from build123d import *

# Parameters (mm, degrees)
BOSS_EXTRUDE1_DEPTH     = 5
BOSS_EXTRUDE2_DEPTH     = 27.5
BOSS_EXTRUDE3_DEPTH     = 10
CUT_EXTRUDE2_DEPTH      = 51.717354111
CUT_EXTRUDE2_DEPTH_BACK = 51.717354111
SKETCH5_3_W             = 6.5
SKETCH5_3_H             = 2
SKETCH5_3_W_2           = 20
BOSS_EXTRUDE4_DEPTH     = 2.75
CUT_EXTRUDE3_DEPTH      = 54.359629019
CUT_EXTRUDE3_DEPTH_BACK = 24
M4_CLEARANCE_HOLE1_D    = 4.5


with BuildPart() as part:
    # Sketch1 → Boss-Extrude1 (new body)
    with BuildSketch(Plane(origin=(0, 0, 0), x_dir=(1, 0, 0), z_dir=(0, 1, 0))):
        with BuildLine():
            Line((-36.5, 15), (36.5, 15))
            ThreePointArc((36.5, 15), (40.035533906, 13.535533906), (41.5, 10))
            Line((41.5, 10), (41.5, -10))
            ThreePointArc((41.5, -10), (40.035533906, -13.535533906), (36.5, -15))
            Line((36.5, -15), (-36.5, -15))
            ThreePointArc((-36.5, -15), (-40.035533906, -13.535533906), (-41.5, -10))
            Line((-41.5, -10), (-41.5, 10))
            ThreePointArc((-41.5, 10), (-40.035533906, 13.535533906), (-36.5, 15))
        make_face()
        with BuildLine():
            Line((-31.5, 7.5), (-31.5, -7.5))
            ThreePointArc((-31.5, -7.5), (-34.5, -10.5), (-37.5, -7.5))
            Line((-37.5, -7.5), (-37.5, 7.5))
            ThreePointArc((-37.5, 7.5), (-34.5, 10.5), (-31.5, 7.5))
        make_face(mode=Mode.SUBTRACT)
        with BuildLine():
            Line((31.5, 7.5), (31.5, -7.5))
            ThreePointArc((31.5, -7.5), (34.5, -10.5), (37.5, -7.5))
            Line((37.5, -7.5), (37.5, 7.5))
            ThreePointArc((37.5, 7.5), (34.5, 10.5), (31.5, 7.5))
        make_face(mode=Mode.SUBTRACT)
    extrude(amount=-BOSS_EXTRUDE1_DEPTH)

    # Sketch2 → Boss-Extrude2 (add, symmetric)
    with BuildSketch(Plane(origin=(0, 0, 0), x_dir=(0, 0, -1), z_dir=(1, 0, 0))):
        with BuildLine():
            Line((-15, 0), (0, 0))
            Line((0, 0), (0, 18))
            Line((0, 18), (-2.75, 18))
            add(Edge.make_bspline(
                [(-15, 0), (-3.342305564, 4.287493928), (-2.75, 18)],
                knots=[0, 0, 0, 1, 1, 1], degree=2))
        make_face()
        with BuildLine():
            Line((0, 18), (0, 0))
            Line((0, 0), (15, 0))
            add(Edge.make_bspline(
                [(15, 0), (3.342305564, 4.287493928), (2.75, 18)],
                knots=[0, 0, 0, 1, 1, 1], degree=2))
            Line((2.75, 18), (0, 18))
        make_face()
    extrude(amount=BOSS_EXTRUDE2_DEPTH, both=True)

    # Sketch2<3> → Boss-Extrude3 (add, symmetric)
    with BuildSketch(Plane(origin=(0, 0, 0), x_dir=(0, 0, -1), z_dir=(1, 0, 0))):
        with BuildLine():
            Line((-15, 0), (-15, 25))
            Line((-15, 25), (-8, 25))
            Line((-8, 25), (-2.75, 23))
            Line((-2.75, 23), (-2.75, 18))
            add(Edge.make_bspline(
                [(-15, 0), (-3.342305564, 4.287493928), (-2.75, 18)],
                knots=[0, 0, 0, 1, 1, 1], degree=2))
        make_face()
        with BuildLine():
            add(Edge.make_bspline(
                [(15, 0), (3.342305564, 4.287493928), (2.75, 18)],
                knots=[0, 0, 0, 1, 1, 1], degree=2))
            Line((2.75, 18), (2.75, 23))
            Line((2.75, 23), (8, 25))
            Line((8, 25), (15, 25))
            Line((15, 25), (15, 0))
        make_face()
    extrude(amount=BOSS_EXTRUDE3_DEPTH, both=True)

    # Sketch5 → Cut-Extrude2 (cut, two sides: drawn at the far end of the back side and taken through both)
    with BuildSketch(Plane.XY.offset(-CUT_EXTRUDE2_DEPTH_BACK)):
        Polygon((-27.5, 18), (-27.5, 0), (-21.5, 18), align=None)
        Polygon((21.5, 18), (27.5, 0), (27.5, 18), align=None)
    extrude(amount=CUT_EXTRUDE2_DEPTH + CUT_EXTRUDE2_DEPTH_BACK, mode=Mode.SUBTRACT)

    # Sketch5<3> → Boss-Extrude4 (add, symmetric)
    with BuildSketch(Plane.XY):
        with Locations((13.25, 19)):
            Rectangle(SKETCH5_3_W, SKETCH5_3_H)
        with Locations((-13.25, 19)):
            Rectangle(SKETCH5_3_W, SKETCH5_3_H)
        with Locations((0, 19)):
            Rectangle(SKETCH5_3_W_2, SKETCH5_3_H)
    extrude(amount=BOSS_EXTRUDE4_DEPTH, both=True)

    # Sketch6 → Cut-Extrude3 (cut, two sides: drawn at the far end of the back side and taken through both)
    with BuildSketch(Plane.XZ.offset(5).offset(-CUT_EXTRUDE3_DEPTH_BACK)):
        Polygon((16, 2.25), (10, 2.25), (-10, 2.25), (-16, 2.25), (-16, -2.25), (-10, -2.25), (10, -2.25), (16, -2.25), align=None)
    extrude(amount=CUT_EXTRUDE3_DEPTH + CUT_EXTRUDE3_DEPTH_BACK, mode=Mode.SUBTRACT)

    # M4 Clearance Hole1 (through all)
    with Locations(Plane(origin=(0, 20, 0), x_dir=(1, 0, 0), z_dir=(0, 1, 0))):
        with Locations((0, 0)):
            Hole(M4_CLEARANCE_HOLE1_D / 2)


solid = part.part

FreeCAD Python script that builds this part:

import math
import FreeCAD as App
import Part
import Sketcher


def add_polygon(sketch, points):
    """Adds a closed chain of lines whose ends are joined by coincident constraints."""
    first, n = sketch.GeometryCount, len(points)
    for a, b in zip(points, points[1:] + points[:1]):
        sketch.addGeometry(Part.LineSegment(App.Vector(*a, 0), App.Vector(*b, 0)), False)
    for i in range(n):
        sketch.addConstraint(Sketcher.Constraint("Coincident", first + i, 2, first + (i + 1) % n, 1))

doc = App.newDocument("Part")
params = doc.addObject("Spreadsheet::Sheet", "Params")
for row, (alias, value) in enumerate([
    ("sketch1_radius", "5 mm"),
    ("sketch1_radius2", "3 mm"),
    ("sketch1_width", "73 mm"),
    ("sketch1_height", "20 mm"),
    ("sketch1_height2", "15 mm"),
    ("pad1_length", "5 mm"),
    ("pad2_length", "55 mm"),
    ("sketch3_width", "25 mm"),
    ("sketch3_width2", "5 mm"),
    ("sketch3_height", "7 mm"),
    ("pad3_length", "20 mm"),
    ("sketch4_width", "6 mm"),
    ("sketch4_height", "18 mm"),
    ("sketch5_width", "33 mm"),
    ("sketch5_height", "2 mm"),
    ("pad4_length", "5.5 mm"),
    ("sketch6_width", "32 mm"),
    ("sketch6_height", "4.5 mm"),
    ("pocket2_length", "54.359629 mm"),
    ("pocket2_length2", "24 mm"),
    ("sketch7_diameter", "4.5 mm"),
    ("hole_diameter", "4.5 mm"),
], start=1):
    params.set(f"A{row}", alias)
    params.set(f"B{row}", "=" + value)
    params.setAlias(f"B{row}", alias)

body = doc.addObject("PartDesign::Body", "Body")

sketch1 = doc.addObject("Sketcher::SketchObject", "Sketch")
body.addObject(sketch1)
sketch1.AttachmentSupport = (doc.XZ_Plane, [""])
sketch1.MapMode = "FlatFace"
sketch1.addGeometry([
    Part.LineSegment(App.Vector(36.5, -15, 0), App.Vector(-36.5, -15, 0)),
    Part.ArcOfCircle(Part.Circle(App.Vector(-36.5, -10, 0), App.Vector(0, 0, 1), 5), math.radians(180), math.radians(270)),
    Part.LineSegment(App.Vector(-41.5, -10, 0), App.Vector(-41.5, 10, 0)),
    Part.ArcOfCircle(Part.Circle(App.Vector(-36.5, 10, 0), App.Vector(0, 0, 1), 5), math.radians(90), math.radians(180)),
    Part.LineSegment(App.Vector(-36.5, 15, 0), App.Vector(36.5, 15, 0)),
    Part.ArcOfCircle(Part.Circle(App.Vector(36.5, 10, 0), App.Vector(0, 0, 1), 5), math.radians(0), math.radians(90)),
    Part.LineSegment(App.Vector(41.5, 10, 0), App.Vector(41.5, -10, 0)),
    Part.ArcOfCircle(Part.Circle(App.Vector(36.5, -10, 0), App.Vector(0, 0, 1), 5), math.radians(-90), math.radians(0)),
    Part.ArcOfCircle(Part.Circle(App.Vector(34.5, -7.5, 0), App.Vector(0, 0, 1), 3), math.radians(180), math.radians(360)),
    Part.LineSegment(App.Vector(37.5, -7.5, 0), App.Vector(37.5, 7.5, 0)),
    Part.ArcOfCircle(Part.Circle(App.Vector(34.5, 7.5, 0), App.Vector(0, 0, 1), 3), math.radians(0), math.radians(180)),
    Part.LineSegment(App.Vector(31.5, 7.5, 0), App.Vector(31.5, -7.5, 0)),
    Part.LineSegment(App.Vector(-31.5, -7.5, 0), App.Vector(-31.5, 7.5, 0)),
    Part.ArcOfCircle(Part.Circle(App.Vector(-34.5, 7.5, 0), App.Vector(0, 0, 1), 3), math.radians(0), math.radians(180)),
    Part.LineSegment(App.Vector(-37.5, 7.5, 0), App.Vector(-37.5, -7.5, 0)),
    Part.ArcOfCircle(Part.Circle(App.Vector(-34.5, -7.5, 0), App.Vector(0, 0, 1), 3), math.radians(180), math.radians(360)),
], False)
sketch1.addConstraint([
    Sketcher.Constraint("Tangent", 0, 2, 1, 2),
    Sketcher.Constraint("Tangent", 1, 1, 2, 1),
    Sketcher.Constraint("Tangent", 2, 2, 3, 2),
    Sketcher.Constraint("Tangent", 3, 1, 4, 1),
    Sketcher.Constraint("Tangent", 4, 2, 5, 2),
    Sketcher.Constraint("Tangent", 5, 1, 6, 1),
    Sketcher.Constraint("Tangent", 6, 2, 7, 2),
    Sketcher.Constraint("Tangent", 7, 1, 0, 1),
    Sketcher.Constraint("Tangent", 8, 2, 9, 1),
    Sketcher.Constraint("Tangent", 9, 2, 10, 1),
    Sketcher.Constraint("Tangent", 10, 2, 11, 1),
    Sketcher.Constraint("Tangent", 11, 2, 8, 1),
    Sketcher.Constraint("Tangent", 12, 2, 13, 1),
    Sketcher.Constraint("Tangent", 13, 2, 14, 1),
    Sketcher.Constraint("Tangent", 14, 2, 15, 1),
    Sketcher.Constraint("Tangent", 15, 2, 12, 1),
    Sketcher.Constraint("Horizontal", 0),
    Sketcher.Constraint("Vertical", 2),
    Sketcher.Constraint("Horizontal", 4),
    Sketcher.Constraint("Vertical", 6),
    Sketcher.Constraint("Vertical", 9),
    Sketcher.Constraint("Vertical", 11),
    Sketcher.Constraint("Vertical", 12),
    Sketcher.Constraint("Vertical", 14),
    Sketcher.Constraint("Equal", 1, 3),
    Sketcher.Constraint("Equal", 3, 5),
    Sketcher.Constraint("Equal", 5, 7),
    Sketcher.Constraint("Equal", 10, 13),
    Sketcher.Constraint("Symmetric", 1, 3, 5, 3, -1, 1),
    Sketcher.Constraint("Symmetric", 8, 3, 13, 3, -1, 1),
    Sketcher.Constraint("Horizontal", 10, 3, 13, 3),
    Sketcher.Constraint("Horizontal", 8, 3, 15, 3),
    Sketcher.Constraint("Radius", 1, 5.0),
    Sketcher.Constraint("Radius", 8, 3.0),
    Sketcher.Constraint("DistanceX", 0, 2, 0, 1, 73.0),
    Sketcher.Constraint("DistanceY", 2, 1, 2, 2, 20.0),
    Sketcher.Constraint("DistanceY", 9, 1, 9, 2, 15.0),
    Sketcher.Constraint("DistanceX", 8, 3, 7, 3, 2.0),
])
sketch1.setExpression("Constraints[32]", "Params.sketch1_radius")
sketch1.setExpression("Constraints[33]", "Params.sketch1_radius2")
sketch1.setExpression("Constraints[34]", "Params.sketch1_width")
sketch1.setExpression("Constraints[35]", "Params.sketch1_height")
sketch1.setExpression("Constraints[36]", "Params.sketch1_height2")
pad1 = doc.addObject("PartDesign::Pad", "Pad")
body.addObject(pad1)
pad1.Profile = sketch1
pad1.setExpression("Length", "Params.pad1_length")

sketch2 = doc.addObject("Sketcher::SketchObject", "Sketch001")
body.addObject(sketch2)
sketch2.AttachmentSupport = (doc.YZ_Plane, [""])
sketch2.MapMode = "FlatFace"
sketch2.addGeometry([
    Part.LineSegment(App.Vector(0, 15, 0), App.Vector(0, -15, 0)),
    Part.BSplineCurve([App.Vector(0, -15, 0), App.Vector(4.287494, -3.342306, 0), App.Vector(18, -2.75, 0)], [3, 3], [0, 1], False, 2, [1, 1, 1], False),
    Part.LineSegment(App.Vector(18, -2.75, 0), App.Vector(18, 2.75, 0)),
    Part.BSplineCurve([App.Vector(0, 15, 0), App.Vector(4.287494, 3.342306, 0), App.Vector(18, 2.75, 0)], [3, 3], [0, 1], False, 2, [1, 1, 1], False),
], False)
sketch2.addConstraint([
    Sketcher.Constraint("Block", 1),
    Sketcher.Constraint("Block", 3),
    Sketcher.Constraint("Coincident", 0, 2, 1, 1),
    Sketcher.Constraint("Coincident", 1, 2, 2, 1),
    Sketcher.Constraint("Coincident", 2, 2, 3, 2),
    Sketcher.Constraint("Coincident", 3, 1, 0, 1),
])
pad2 = doc.addObject("PartDesign::Pad", "Pad001")
body.addObject(pad2)
pad2.Profile = sketch2
pad2.setExpression("Length", "Params.pad2_length")
pad2.Midplane = True

sketch3 = doc.addObject("Sketcher::SketchObject", "Sketch002")
body.addObject(sketch3)
sketch3.AttachmentSupport = (doc.YZ_Plane, [""])
sketch3.MapMode = "FlatFace"
sketch3.addGeometry([
    Part.LineSegment(App.Vector(25, 15, 0), App.Vector(0, 15, 0)),
    Part.BSplineCurve([App.Vector(0, 15, 0), App.Vector(4.287494, 3.342306, 0), App.Vector(18, 2.75, 0)], [3, 3], [0, 1], False, 2, [1, 1, 1], False),
    Part.LineSegment(App.Vector(18, 2.75, 0), App.Vector(23, 2.75, 0)),
    Part.LineSegment(App.Vector(23, 2.75, 0), App.Vector(25, 8, 0)),
    Part.LineSegment(App.Vector(25, 8, 0), App.Vector(25, 15, 0)),
    Part.BSplineCurve([App.Vector(0, -15, 0), App.Vector(4.287494, -3.342306, 0), App.Vector(18, -2.75, 0)], [3, 3], [0, 1], False, 2, [1, 1, 1], False),
    Part.LineSegment(App.Vector(0, -15, 0), App.Vector(25, -15, 0)),
    Part.LineSegment(App.Vector(25, -15, 0), App.Vector(25, -8, 0)),
    Part.LineSegment(App.Vector(25, -8, 0), App.Vector(23, -2.75, 0)),
    Part.LineSegment(App.Vector(23, -2.75, 0), App.Vector(18, -2.75, 0)),
], False)
sketch3.addConstraint([
    Sketcher.Constraint("Block", 1),
    Sketcher.Constraint("Block", 5),
    Sketcher.Constraint("Coincident", 0, 2, 1, 1),
    Sketcher.Constraint("Coincident", 1, 2, 2, 1),
    Sketcher.Constraint("Coincident", 2, 2, 3, 1),
    Sketcher.Constraint("Coincident", 3, 2, 4, 1),
    Sketcher.Constraint("Coincident", 4, 2, 0, 1),
    Sketcher.Constraint("Coincident", 5, 1, 6, 1),
    Sketcher.Constraint("Coincident", 6, 2, 7, 1),
    Sketcher.Constraint("Coincident", 7, 2, 8, 1),
    Sketcher.Constraint("Coincident", 8, 2, 9, 1),
    Sketcher.Constraint("Coincident", 9, 2, 5, 2),
    Sketcher.Constraint("Horizontal", 0),
    Sketcher.Constraint("Horizontal", 2),
    Sketcher.Constraint("Vertical", 4),
    Sketcher.Constraint("Horizontal", 6),
    Sketcher.Constraint("Vertical", 7),
    Sketcher.Constraint("Horizontal", 9),
    Sketcher.Constraint("Symmetric", 3, 2, 7, 2, -1),
    Sketcher.Constraint("Vertical", 2, 2, 8, 2),
    Sketcher.Constraint("DistanceX", 0, 2, 0, 1, 25.0),
    Sketcher.Constraint("DistanceX", 2, 1, 2, 2, 5.0),
    Sketcher.Constraint("DistanceY", 4, 1, 4, 2, 7.0),
])
sketch3.setExpression("Constraints[20]", "Params.sketch3_width")
sketch3.setExpression("Constraints[21]", "Params.sketch3_width2")
sketch3.setExpression("Constraints[22]", "Params.sketch3_height")
pad3 = doc.addObject("PartDesign::Pad", "Pad002")
body.addObject(pad3)
pad3.Profile = sketch3
pad3.setExpression("Length", "Params.pad3_length")
pad3.Midplane = True

sketch4 = doc.addObject("Sketcher::SketchObject", "Sketch003")
body.addObject(sketch4)
sketch4.AttachmentSupport = (doc.XY_Plane, [""])
sketch4.MapMode = "FlatFace"
add_polygon(sketch4, [(-28, 18), (-28, 0), (-22, 18)])
add_polygon(sketch4, [(22, 18), (28, 0), (28, 18)])
sketch4.addConstraint([
    Sketcher.Constraint("Vertical", 0),
    Sketcher.Constraint("Horizontal", 2),
    Sketcher.Constraint("Vertical", 4),
    Sketcher.Constraint("Horizontal", 5),
    Sketcher.Constraint("Symmetric", 0, 2, 3, 2, -1, 1),
    Sketcher.Constraint("Symmetric", 1, 2, 5, 2, -2),
    Sketcher.Constraint("PointOnObject", 0, 2, -1),
    Sketcher.Constraint("DistanceX", 2, 2, 2, 1, 6.0),
    Sketcher.Constraint("DistanceY", 0, 2, 0, 1, 18.0),
    Sketcher.Constraint("DistanceX", 1, 2, 3, 2, 49.0),
])
sketch4.setExpression("Constraints[13]", "Params.sketch4_width")
sketch4.setExpression("Constraints[14]", "Params.sketch4_height")
pocket1 = doc.addObject("PartDesign::Pocket", "Pocket")
body.addObject(pocket1)
pocket1.Profile = sketch4
pocket1.Type = "ThroughAll"
pocket1.Midplane = True

sketch5 = doc.addObject("Sketcher::SketchObject", "Sketch004")
body.addObject(sketch5)
sketch5.AttachmentSupport = (doc.XY_Plane, [""])
sketch5.MapMode = "FlatFace"
add_polygon(sketch5, [(16.5, 18), (16.5, 20), (-16.5, 20), (-16.5, 18)])
sketch5.addConstraint([
    Sketcher.Constraint("Vertical", 0),
    Sketcher.Constraint("Horizontal", 1),
    Sketcher.Constraint("Vertical", 2),
    Sketcher.Constraint("Horizontal", 3),
    Sketcher.Constraint("DistanceX", 1, 2, 1, 1, 33.0),
    Sketcher.Constraint("DistanceY", 0, 1, 0, 2, 2.0),
    Sketcher.Constraint("DistanceY", -1, 1, 0, 2, 20.0),
    Sketcher.Constraint("DistanceX", -1, 1, 0, 2, 16.5),
])
sketch5.setExpression("Constraints[8]", "Params.sketch5_width")
sketch5.setExpression("Constraints[9]", "Params.sketch5_height")
pad4 = doc.addObject("PartDesign::Pad", "Pad003")
body.addObject(pad4)
pad4.Profile = sketch5
pad4.setExpression("Length", "Params.pad4_length")
pad4.Midplane = True

sketch6 = doc.addObject("Sketcher::SketchObject", "Sketch005")
body.addObject(sketch6)
sketch6.AttachmentSupport = (doc.XZ_Plane, [""])
sketch6.MapMode = "FlatFace"
sketch6.AttachmentOffset = App.Placement(App.Vector(0, 0, 5), App.Rotation())
add_polygon(sketch6, [(16, 2.2), (-16, 2.2), (-16, -2.2), (16, -2.2)])
sketch6.addConstraint([
    Sketcher.Constraint("Horizontal", 0),
    Sketcher.Constraint("Vertical", 1),
    Sketcher.Constraint("Horizontal", 2),
    Sketcher.Constraint("Vertical", 3),
    Sketcher.Constraint("Symmetric", 0, 2, 2, 2, -1, 1),
    Sketcher.Constraint("DistanceX", 0, 2, 0, 1, 32.0),
    Sketcher.Constraint("DistanceY", 1, 2, 1, 1, 4.5),
])
sketch6.setExpression("Constraints[9]", "Params.sketch6_width")
sketch6.setExpression("Constraints[10]", "Params.sketch6_height")
pocket2 = doc.addObject("PartDesign::Pocket", "Pocket001")
body.addObject(pocket2)
pocket2.Profile = sketch6
pocket2.Type = "TwoLengths"
pocket2.setExpression("Length", "Params.pocket2_length")
pocket2.setExpression("Length2", "Params.pocket2_length2")
pocket2.Reversed = True

sketch7 = doc.addObject("Sketcher::SketchObject", "Sketch006")
body.addObject(sketch7)
sketch7.AttachmentSupport = (doc.XZ_Plane, [""])
sketch7.MapMode = "FlatFace"
sketch7.AttachmentOffset = App.Placement(App.Vector(0, 0, -20), App.Rotation())
sketch7.addGeometry(Part.Circle(App.Vector(0, 0, 0), App.Vector(0, 0, 1), 2.2), False)
sketch7.addConstraint([
    Sketcher.Constraint("Coincident", 0, 3, -1, 1),
    Sketcher.Constraint("Diameter", 0, 4.5),
])
sketch7.setExpression("Constraints[1]", "Params.sketch7_diameter")
doc.recompute()
hole = doc.addObject("PartDesign::Hole", "Hole")
body.addObject(hole)
hole.Profile = sketch7
hole.ThreadType = "None"
hole.setExpression("Diameter", "Params.hole_diameter")
hole.DepthType = "ThroughAll"
hole.Reversed = True

doc.recompute()
